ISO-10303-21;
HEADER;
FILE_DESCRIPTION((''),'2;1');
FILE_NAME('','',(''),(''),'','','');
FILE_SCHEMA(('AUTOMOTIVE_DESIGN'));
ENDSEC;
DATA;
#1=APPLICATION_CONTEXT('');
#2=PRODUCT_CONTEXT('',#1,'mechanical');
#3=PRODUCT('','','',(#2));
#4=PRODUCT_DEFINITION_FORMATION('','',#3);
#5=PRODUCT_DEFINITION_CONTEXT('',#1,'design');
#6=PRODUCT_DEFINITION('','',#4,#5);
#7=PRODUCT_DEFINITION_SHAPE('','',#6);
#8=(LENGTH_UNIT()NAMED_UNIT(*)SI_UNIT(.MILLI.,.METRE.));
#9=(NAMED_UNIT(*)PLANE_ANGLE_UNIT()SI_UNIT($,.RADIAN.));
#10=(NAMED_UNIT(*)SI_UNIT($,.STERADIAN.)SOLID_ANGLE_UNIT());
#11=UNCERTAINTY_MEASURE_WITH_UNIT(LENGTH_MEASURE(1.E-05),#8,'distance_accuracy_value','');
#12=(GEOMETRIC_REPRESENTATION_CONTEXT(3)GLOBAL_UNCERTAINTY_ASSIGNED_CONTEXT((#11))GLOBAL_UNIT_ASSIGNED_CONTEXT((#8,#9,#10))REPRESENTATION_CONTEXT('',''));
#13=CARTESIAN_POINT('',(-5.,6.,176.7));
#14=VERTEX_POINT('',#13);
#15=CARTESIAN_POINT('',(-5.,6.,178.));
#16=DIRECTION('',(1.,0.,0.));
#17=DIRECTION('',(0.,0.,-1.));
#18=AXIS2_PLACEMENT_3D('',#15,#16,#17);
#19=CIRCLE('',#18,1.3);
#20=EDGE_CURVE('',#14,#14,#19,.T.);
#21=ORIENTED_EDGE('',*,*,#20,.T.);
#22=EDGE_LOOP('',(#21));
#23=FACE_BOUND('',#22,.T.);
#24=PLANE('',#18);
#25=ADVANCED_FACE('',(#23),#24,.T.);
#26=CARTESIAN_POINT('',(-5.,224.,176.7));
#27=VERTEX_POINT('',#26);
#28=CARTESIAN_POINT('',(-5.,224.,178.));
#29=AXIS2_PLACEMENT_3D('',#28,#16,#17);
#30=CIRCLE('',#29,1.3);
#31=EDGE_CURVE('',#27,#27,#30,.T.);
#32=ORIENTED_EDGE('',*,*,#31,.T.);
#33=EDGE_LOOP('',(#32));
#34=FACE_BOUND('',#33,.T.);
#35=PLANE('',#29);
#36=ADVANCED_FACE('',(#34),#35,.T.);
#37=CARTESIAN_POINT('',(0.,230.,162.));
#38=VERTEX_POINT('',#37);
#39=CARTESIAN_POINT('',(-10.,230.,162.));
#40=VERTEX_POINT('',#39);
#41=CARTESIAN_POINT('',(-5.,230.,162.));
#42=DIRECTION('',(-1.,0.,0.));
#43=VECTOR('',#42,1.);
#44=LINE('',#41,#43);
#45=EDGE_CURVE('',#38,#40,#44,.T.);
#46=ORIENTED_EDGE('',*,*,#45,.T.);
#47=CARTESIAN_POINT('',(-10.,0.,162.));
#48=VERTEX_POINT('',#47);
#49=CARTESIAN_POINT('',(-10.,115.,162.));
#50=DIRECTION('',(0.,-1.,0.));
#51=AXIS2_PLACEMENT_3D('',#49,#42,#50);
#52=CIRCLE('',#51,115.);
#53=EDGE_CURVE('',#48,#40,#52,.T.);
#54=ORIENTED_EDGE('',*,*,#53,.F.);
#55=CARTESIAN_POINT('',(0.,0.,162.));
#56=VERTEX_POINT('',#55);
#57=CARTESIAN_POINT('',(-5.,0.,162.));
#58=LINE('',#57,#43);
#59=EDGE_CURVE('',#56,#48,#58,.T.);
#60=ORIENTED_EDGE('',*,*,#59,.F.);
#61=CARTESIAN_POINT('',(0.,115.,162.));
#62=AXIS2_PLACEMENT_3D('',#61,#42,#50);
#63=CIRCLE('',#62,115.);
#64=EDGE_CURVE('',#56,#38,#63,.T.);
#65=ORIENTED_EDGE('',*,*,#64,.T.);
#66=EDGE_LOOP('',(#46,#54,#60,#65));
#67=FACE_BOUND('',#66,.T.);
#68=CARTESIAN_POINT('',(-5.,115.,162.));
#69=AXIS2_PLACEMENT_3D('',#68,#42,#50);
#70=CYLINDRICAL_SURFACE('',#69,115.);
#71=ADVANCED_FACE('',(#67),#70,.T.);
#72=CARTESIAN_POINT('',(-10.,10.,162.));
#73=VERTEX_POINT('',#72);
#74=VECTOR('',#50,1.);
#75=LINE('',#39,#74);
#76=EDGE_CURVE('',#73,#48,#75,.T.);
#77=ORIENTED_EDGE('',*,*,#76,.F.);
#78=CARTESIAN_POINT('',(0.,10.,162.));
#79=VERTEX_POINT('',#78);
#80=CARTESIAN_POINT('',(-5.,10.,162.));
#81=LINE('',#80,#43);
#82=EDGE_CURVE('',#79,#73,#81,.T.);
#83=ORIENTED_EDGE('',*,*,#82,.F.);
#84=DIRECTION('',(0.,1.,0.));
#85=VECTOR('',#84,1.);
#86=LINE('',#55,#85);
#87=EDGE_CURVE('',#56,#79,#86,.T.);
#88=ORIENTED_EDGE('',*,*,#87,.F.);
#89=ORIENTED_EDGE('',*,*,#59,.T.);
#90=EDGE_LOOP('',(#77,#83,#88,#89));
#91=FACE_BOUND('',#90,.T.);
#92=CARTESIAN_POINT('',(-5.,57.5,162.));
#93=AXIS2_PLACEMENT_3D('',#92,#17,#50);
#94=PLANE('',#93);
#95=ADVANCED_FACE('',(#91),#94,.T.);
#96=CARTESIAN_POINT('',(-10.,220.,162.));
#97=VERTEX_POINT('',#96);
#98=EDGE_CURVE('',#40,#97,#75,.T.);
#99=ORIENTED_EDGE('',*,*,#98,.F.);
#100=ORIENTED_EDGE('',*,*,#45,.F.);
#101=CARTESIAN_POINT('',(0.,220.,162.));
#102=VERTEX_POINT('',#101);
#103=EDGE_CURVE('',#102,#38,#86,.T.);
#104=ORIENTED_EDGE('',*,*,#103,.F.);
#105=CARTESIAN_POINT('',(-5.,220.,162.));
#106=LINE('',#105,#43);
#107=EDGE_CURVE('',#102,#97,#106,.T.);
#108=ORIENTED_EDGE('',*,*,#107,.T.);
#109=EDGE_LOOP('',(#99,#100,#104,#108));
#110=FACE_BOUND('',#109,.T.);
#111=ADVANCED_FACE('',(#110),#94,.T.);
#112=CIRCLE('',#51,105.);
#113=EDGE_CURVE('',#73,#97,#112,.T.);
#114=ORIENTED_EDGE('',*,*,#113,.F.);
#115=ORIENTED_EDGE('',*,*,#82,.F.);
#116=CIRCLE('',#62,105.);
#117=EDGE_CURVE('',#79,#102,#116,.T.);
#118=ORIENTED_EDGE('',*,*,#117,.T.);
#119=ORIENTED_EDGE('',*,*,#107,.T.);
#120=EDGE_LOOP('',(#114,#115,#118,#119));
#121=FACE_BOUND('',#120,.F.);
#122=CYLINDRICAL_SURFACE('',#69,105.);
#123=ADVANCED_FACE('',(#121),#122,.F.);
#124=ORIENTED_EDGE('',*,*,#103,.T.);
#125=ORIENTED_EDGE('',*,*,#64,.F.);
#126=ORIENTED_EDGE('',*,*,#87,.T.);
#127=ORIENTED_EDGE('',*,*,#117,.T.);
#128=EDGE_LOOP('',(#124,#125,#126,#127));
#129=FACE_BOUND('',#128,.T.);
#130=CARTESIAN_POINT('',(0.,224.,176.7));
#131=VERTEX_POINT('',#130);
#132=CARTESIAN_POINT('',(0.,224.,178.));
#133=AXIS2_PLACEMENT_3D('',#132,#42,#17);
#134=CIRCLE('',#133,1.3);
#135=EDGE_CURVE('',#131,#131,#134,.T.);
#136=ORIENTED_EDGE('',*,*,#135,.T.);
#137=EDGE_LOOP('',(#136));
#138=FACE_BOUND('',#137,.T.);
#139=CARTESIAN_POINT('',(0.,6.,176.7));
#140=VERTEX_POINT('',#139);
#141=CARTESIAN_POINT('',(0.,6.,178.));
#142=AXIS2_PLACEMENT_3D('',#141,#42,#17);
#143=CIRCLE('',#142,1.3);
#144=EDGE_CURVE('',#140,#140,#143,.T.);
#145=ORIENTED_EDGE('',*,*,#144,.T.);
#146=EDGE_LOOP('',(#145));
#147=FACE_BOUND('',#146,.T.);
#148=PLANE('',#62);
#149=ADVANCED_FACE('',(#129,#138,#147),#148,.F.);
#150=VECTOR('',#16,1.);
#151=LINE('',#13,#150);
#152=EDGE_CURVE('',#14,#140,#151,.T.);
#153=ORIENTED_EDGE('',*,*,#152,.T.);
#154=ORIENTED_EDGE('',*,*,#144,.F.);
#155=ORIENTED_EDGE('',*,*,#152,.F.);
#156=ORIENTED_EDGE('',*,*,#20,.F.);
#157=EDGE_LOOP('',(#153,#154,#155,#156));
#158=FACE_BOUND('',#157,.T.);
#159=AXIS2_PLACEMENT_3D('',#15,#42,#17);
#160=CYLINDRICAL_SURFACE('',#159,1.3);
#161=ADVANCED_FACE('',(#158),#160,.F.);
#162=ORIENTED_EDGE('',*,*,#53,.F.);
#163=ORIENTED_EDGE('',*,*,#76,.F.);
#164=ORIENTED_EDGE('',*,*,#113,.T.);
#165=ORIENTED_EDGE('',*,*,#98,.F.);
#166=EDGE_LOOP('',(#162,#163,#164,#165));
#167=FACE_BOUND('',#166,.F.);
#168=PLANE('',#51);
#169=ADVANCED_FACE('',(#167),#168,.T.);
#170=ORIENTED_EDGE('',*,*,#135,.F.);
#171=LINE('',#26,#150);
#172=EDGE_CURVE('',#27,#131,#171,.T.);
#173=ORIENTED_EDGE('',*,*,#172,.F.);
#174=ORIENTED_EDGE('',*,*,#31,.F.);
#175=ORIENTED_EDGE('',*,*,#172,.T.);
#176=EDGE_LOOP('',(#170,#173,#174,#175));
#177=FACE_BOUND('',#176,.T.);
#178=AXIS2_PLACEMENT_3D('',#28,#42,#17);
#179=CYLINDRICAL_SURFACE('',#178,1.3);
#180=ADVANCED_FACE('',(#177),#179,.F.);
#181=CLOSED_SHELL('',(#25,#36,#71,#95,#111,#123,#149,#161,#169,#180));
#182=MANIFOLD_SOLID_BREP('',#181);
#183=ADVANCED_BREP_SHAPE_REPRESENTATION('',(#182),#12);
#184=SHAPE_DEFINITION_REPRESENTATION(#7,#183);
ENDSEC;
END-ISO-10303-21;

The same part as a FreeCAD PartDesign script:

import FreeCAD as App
import Part
import Sketcher
Q = App.Units.Quantity

doc = App.newDocument("Part")
params = doc.addObject("Spreadsheet::Sheet", "Params")
for row, (alias, value) in enumerate([
    ("sketch1_diameter", "2.6 mm"),
    ("pad1_length", "331 mm"),
    ("sketch2_diameter", "2.6 mm"),
    ("pad2_length", "331 mm"),
    ("sketch3_width", "10 mm"),
    ("sketch3_height", "105 mm"),
    ("revolution_angle", "180 deg"),
    ("sketch4_width", "10 mm"),
    ("sketch4_height", "115 mm"),
    ("revolution2_angle", "180 deg"),
], start=1):
    params.set(f"A{row}", alias)
    params.set(f"B{row}", "=" + value)
    params.setAlias(f"B{row}", alias)

body = doc.addObject("PartDesign::Body", "Body")

# Sketch on YZ plane
sketch1 = body.newObject("Sketcher::SketchObject", "Sketch")
sketch1.AttachmentSupport = (doc.getObject("YZ_Plane"), [""])
sketch1.MapMode = "FlatFace"
sketch1.AttachmentOffset = App.Placement(App.Vector(0, 0, 5), App.Rotation())
sketch1.addGeometry(Part.Circle(App.Vector(224, 178, 0), App.Vector(0, 0, 1), 1.3), False)
sketch1.addConstraint([
    Sketcher.Constraint("Diameter", 0, Q("2.6 mm")),
    Sketcher.Constraint("DistanceX", -1, 1, 0, 3, Q("224 mm")),
    Sketcher.Constraint("DistanceY", -1, 1, 0, 3, Q("178 mm")),
])
sketch1.setExpression("Constraints[0]", "Params.sketch1_diameter")
pad1 = body.newObject("PartDesign::Pad", "Pad")
pad1.Profile = sketch1
pad1.setExpression("Length", "Params.pad1_length")
body2 = doc.addObject("PartDesign::Body", "Body001")

# Sketch on YZ plane
sketch2 = body2.newObject("Sketcher::SketchObject", "Sketch001")
sketch2.AttachmentSupport = (doc.getObject("YZ_Plane001"), [""])
sketch2.MapMode = "FlatFace"
sketch2.AttachmentOffset = App.Placement(App.Vector(0, 0, 5), App.Rotation())
sketch2.addGeometry(Part.Circle(App.Vector(6, 178, 0), App.Vector(0, 0, 1), 1.3), False)
sketch2.addConstraint([
    Sketcher.Constraint("Diameter", 0, Q("2.6 mm")),
    Sketcher.Constraint("DistanceX", -1, 1, 0, 3, Q("6 mm")),
    Sketcher.Constraint("DistanceY", -1, 1, 0, 3, Q("178 mm")),
])
sketch2.setExpression("Constraints[0]", "Params.sketch2_diameter")
pad2 = body2.newObject("PartDesign::Pad", "Pad001")
pad2.Profile = sketch2
pad2.setExpression("Length", "Params.pad2_length")
body3 = doc.addObject("PartDesign::Body", "Body002")

# Sketch on XY plane
sketch3 = body3.newObject("Sketcher::SketchObject", "Sketch002")
sketch3.AttachmentSupport = (doc.getObject("XY_Plane002"), [""])
sketch3.MapMode = "FlatFace"
sketch3.AttachmentOffset = App.Placement(App.Vector(0, 0, 171), App.Rotation())
sketch3.addGeometry([
    Part.LineSegment(App.Vector(-13, 115, 0), App.Vector(-3, 115, 0)),
    Part.LineSegment(App.Vector(-3, 115, 0), App.Vector(-3, 10, 0)),
    Part.LineSegment(App.Vector(-3, 10, 0), App.Vector(-13, 10, 0)),
    Part.LineSegment(App.Vector(-13, 10, 0), App.Vector(-13, 115, 0)),
], False)
sketch3.addGeometry(Part.LineSegment(App.Vector(-3, 115, 0), App.Vector(-13, 115, 0)), True)  # axis
sketch3.addConstraint([
    Sketcher.Constraint("Coincident", 0, 2, 1, 1),
    Sketcher.Constraint("Coincident", 1, 2, 2, 1),
    Sketcher.Constraint("Coincident", 2, 2, 3, 1),
    Sketcher.Constraint("Coincident", 3, 2, 0, 1),
    Sketcher.Constraint("Horizontal", 0),
    Sketcher.Constraint("Vertical", 1),
    Sketcher.Constraint("Horizontal", 2),
    Sketcher.Constraint("Vertical", 3),
    Sketcher.Constraint("Horizontal", 4),
    Sketcher.Constraint("Coincident", 4, 1, 0, 2),
    Sketcher.Constraint("Vertical", 2, 2, 4, 2),
    Sketcher.Constraint("DistanceX", 0, 1, 0, 2, Q("10 mm")),
    Sketcher.Constraint("DistanceY", 1, 2, 1, 1, Q("105 mm")),
    Sketcher.Constraint("DistanceX", 0, 2, -1, 1, Q("3 mm")),
    Sketcher.Constraint("DistanceY", -1, 1, 0, 2, Q("115 mm")),
])
sketch3.setExpression("Constraints[11]", "Params.sketch3_width")
sketch3.setExpression("Constraints[12]", "Params.sketch3_height")
revolution = body3.newObject("PartDesign::Revolution", "Revolution")
revolution.Profile = sketch3
revolution.ReferenceAxis = (sketch3, ["Axis0"])
revolution.setExpression("Angle", "Params.revolution_angle")
body4 = doc.addObject("PartDesign::Body", "Body003")

# Sketch on XY plane
sketch4 = body4.newObject("Sketcher::SketchObject", "Sketch003")
sketch4.AttachmentSupport = (doc.getObject("XY_Plane003"), [""])
sketch4.MapMode = "FlatFace"
sketch4.AttachmentOffset = App.Placement(App.Vector(0, 0, 171), App.Rotation())
sketch4.addGeometry([
    Part.LineSegment(App.Vector(-13, 115, 0), App.Vector(-3, 115, 0)),
    Part.LineSegment(App.Vector(-3, 115, 0), App.Vector(-3, 0, 0)),
    Part.LineSegment(App.Vector(-3, 0, 0), App.Vector(-13, 0, 0)),
    Part.LineSegment(App.Vector(-13, 0, 0), App.Vector(-13, 115, 0)),
], False)
sketch4.addGeometry(Part.LineSegment(App.Vector(-3, 115, 0), App.Vector(-13, 115, 0)), True)  # axis
sketch4.addConstraint([
    Sketcher.Constraint("Coincident", 0, 2, 1, 1),
    Sketcher.Constraint("Coincident", 1, 2, 2, 1),
    Sketcher.Constraint("Coincident", 2, 2, 3, 1),
    Sketcher.Constraint("Coincident", 3, 2, 0, 1),
    Sketcher.Constraint("Horizontal", 0),
    Sketcher.Constraint("Vertical", 1),
    Sketcher.Constraint("Horizontal", 2),
    Sketcher.Constraint("Vertical", 3),
    Sketcher.Constraint("Horizontal", 4),
    Sketcher.Constraint("Coincident", 4, 1, 0, 2),
    Sketcher.Constraint("PointOnObject", 1, 2, -1),
    Sketcher.Constraint("Vertical", 2, 2, 4, 2),
    Sketcher.Constraint("DistanceX", 0, 1, 0, 2, Q("10 mm")),
    Sketcher.Constraint("DistanceY", 1, 2, 1, 1, Q("115 mm")),
    Sketcher.Constraint("DistanceX", 0, 2, -1, 1, Q("3 mm")),
])
sketch4.setExpression("Constraints[12]", "Params.sketch4_width")
sketch4.setExpression("Constraints[13]", "Params.sketch4_height")
revolution2 = body4.newObject("PartDesign::Revolution", "Revolution001")
revolution2.Profile = sketch4
revolution2.ReferenceAxis = (sketch4, ["Axis0"])
revolution2.setExpression("Angle", "Params.revolution2_angle")
doc.recompute()

boolean = body4.newObject("PartDesign::Boolean", "Boolean")
boolean.Type = "Cut"
boolean.addObjects([body3])
body5 = doc.addObject("PartDesign::Body", "Body004")
doc.recompute()

body4.Placement = App.Placement(App.Vector(13, 0, -9), App.Rotation(App.Vector(0, 0, 1), 0))
boolean2 = body5.newObject("PartDesign::Boolean", "Boolean001")
boolean2.Type = "Fuse"
boolean2.addObjects([body4])
doc.recompute()

boolean3 = body5.newObject("PartDesign::Boolean", "Boolean002")
boolean3.Type = "Cut"
boolean3.addObjects([body2])
doc.recompute()

boolean4 = body5.newObject("PartDesign::Boolean", "Boolean003")
boolean4.Type = "Cut"
boolean4.addObjects([body])
body6 = doc.addObject("PartDesign::Body", "Body005")
doc.recompute()

body5.Placement = App.Placement(App.Vector(-10, 0, 0), App.Rotation(App.Vector(0, 0, 1), 0))
boolean5 = body6.newObject("PartDesign::Boolean", "Boolean004")
boolean5.Type = "Fuse"
boolean5.addObjects([body5])

doc.recompute()
